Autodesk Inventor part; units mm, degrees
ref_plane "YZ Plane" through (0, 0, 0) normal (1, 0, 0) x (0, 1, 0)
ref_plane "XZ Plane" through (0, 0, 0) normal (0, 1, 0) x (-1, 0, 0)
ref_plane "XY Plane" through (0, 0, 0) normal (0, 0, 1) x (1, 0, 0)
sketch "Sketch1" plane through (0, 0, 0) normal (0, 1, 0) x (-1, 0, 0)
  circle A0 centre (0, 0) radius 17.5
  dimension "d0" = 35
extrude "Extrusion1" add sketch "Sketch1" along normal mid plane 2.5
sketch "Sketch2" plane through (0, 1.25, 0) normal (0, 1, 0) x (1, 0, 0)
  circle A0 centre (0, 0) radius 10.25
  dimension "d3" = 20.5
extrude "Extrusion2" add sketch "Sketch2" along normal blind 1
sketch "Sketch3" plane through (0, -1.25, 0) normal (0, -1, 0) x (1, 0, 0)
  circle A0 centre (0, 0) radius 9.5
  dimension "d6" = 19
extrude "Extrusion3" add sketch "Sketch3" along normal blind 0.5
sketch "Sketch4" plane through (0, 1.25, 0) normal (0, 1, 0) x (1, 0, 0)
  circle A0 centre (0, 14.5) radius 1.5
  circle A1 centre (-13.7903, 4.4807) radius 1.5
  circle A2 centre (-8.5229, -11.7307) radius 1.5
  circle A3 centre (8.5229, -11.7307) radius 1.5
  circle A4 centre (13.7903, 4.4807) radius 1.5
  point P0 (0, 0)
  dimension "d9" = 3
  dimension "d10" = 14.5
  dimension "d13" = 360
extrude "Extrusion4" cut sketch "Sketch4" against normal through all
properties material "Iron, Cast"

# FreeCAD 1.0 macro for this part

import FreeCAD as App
import Part
import Sketcher

V = App.Vector
Q = App.Units.Quantity

doc = App.newDocument("Part")
params = doc.addObject("Spreadsheet::Sheet", "Params")
for row, (alias, value) in enumerate([
    ("sketch1_diameter", "35 mm"),
    ("pad1_length", "2.5 mm"),
    ("sketch2_diameter", "20.5 mm"),
    ("pad2_length", "1 mm"),
    ("sketch3_diameter", "19 mm"),
    ("pad3_length", "0.5 mm"),
    ("sketch4_diameter", "3 mm"),
], start=1):
    params.set(f"A{row}", alias)
    params.set(f"B{row}", "=" + value)
    params.setAlias(f"B{row}", alias)

body = doc.addObject("PartDesign::Body", "Body")

sketch1 = doc.addObject("Sketcher::SketchObject", "Sketch")
body.addObject(sketch1)
sketch1.AttachmentSupport = (doc.XZ_Plane, [""])
sketch1.MapMode = "FlatFace"
sketch1.addGeometry(Part.Circle(V(0, 0, 0), V(0, 0, 1), 18), False)
sketch1.addConstraint(Sketcher.Constraint("Coincident", 0, 3, -1, 1))
sketch1.addConstraint(Sketcher.Constraint("Diameter", 0, Q("35 mm")))
sketch1.setExpression("Constraints[1]", "Params.sketch1_diameter")
pad1 = doc.addObject("PartDesign::Pad", "Pad")
body.addObject(pad1)
pad1.Profile = sketch1
pad1.setExpression("Length", "Params.pad1_length")
pad1.Midplane = True

sketch2 = doc.addObject("Sketcher::SketchObject", "Sketch001")
body.addObject(sketch2)
sketch2.AttachmentSupport = (doc.XZ_Plane, [""])
sketch2.MapMode = "FlatFace"
sketch2.AttachmentOffset = App.Placement(V(0, 0, -1.25), App.Rotation())
sketch2.addGeometry(Part.Circle(V(0, 0, 0), V(0, 0, 1), 10), False)
sketch2.addConstraint(Sketcher.Constraint("Coincident", 0, 3, -1, 1))
sketch2.addConstraint(Sketcher.Constraint("Diameter", 0, Q("20.5 mm")))
sketch2.setExpression("Constraints[1]", "Params.sketch2_diameter")
pad2 = doc.addObject("PartDesign::Pad", "Pad001")
body.addObject(pad2)
pad2.Profile = sketch2
pad2.setExpression("Length", "Params.pad2_length")
pad2.Reversed = True

sketch3 = doc.addObject("Sketcher::SketchObject", "Sketch002")
body.addObject(sketch3)
sketch3.AttachmentSupport = (doc.XZ_Plane, [""])
sketch3.MapMode = "FlatFace"
sketch3.AttachmentOffset = App.Placement(V(0, 0, 1.25), App.Rotation())
sketch3.addGeometry(Part.Circle(V(0, 0, 0), V(0, 0, 1), 10), False)
sketch3.addConstraint(Sketcher.Constraint("Coincident", 0, 3, -1, 1))
sketch3.addConstraint(Sketcher.Constraint("Diameter", 0, Q("19 mm")))
sketch3.setExpression("Constraints[1]", "Params.sketch3_diameter")
pad3 = doc.addObject("PartDesign::Pad", "Pad002")
body.addObject(pad3)
pad3.Profile = sketch3
pad3.setExpression("Length", "Params.pad3_length")

sketch4 = doc.addObject("Sketcher::SketchObject", "Sketch003")
body.addObject(sketch4)
sketch4.AttachmentSupport = (doc.XZ_Plane, [""])
sketch4.MapMode = "FlatFace"
sketch4.AttachmentOffset = App.Placement(V(0, 0, -1.25), App.Rotation())
sketch4.addGeometry(Part.Circle(V(0, -14.5, 0), V(0, 0, 1), 1.5), False)
sketch4.addGeometry(Part.Circle(V(-13.8, -4.5, 0), V(0, 0, 1), 1.5), False)
sketch4.addGeometry(Part.Circle(V(-8.5, 11.7, 0), V(0, 0, 1), 1.5), False)
sketch4.addGeometry(Part.Circle(V(8.5, 11.7, 0), V(0, 0, 1), 1.5), False)
sketch4.addGeometry(Part.Circle(V(13.8, -4.5, 0), V(0, 0, 1), 1.5), False)
sketch4.addConstraint(Sketcher.Constraint("Equal", 0, 1))
sketch4.addConstraint(Sketcher.Constraint("Equal", 1, 2))
sketch4.addConstraint(Sketcher.Constraint("Equal", 2, 3))
sketch4.addConstraint(Sketcher.Constraint("Equal", 3, 4))
sketch4.addConstraint(Sketcher.Constraint("Symmetric", 2, 3, 3, 3, -2))
sketch4.addConstraint(Sketcher.Constraint("Symmetric", 1, 3, 4, 3, -2))
sketch4.addConstraint(Sketcher.Constraint("PointOnObject", 0, 3, -2))
sketch4.addConstraint(Sketcher.Constraint("Diameter", 0, Q("3 mm")))
sketch4.addConstraint(Sketcher.Constraint("DistanceY", 0, 3, -1, 1, Q("14.5 mm")))
sketch4.addConstraint(Sketcher.Constraint("DistanceX", 2, 3, -1, 1, Q("8.523 mm")))
sketch4.addConstraint(Sketcher.Constraint("DistanceX", 1, 3, -1, 1, Q("13.7903 mm")))
sketch4.addConstraint(Sketcher.Constraint("DistanceY", 1, 3, -1, 1, Q("4.4807 mm")))
sketch4.addConstraint(Sketcher.Constraint("DistanceY", -1, 1, 2, 3, Q("11.7307 mm")))
sketch4.setExpression("Constraints[7]", "Params.sketch4_diameter")
pocket1 = doc.addObject("PartDesign::Pocket", "Pocket")
body.addObject(pocket1)
pocket1.Profile = sketch4
pocket1.Type = "ThroughAll"
pocket1.Reversed = True

doc.recompute()
